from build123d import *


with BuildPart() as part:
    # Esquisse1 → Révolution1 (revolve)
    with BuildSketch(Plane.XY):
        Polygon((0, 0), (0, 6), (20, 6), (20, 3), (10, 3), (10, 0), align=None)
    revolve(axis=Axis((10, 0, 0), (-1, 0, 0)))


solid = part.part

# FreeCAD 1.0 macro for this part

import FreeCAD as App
import Part
import Sketcher
from FreeCAD import Vector

doc = App.newDocument("Part")
body = doc.addObject("PartDesign::Body", "Body")

# Sketch on XY plane
sketch1 = body.newObject("Sketcher::SketchObject", "Sketch")
sketch1.AttachmentSupport = (doc.getObject("XY_Plane"), [""])
sketch1.MapMode = "FlatFace"
sketch1.addGeometry([
    Part.LineSegment(Vector(0, 6, 0), Vector(0, 0, 0)),  # 0
    Part.LineSegment(Vector(0, 0, 0), Vector(10, 0, 0)),  # 1
    Part.LineSegment(Vector(10, 0, 0), Vector(10, 3, 0)),  # 2
    Part.LineSegment(Vector(10, 3, 0), Vector(20, 3, 0)),  # 3
    Part.LineSegment(Vector(20, 3, 0), Vector(20, 6, 0)),  # 4
    Part.LineSegment(Vector(20, 6, 0), Vector(0, 6, 0)),  # 5
], False)
sketch1.addConstraint([
    Sketcher.Constraint("Coincident", 0, 2, 1, 1),
    Sketcher.Constraint("Coincident", 1, 2, 2, 1),
    Sketcher.Constraint("Coincident", 2, 2, 3, 1),
    Sketcher.Constraint("Coincident", 3, 2, 4, 1),
    Sketcher.Constraint("Coincident", 4, 2, 5, 1),
    Sketcher.Constraint("Coincident", 5, 2, 0, 1),
    Sketcher.Constraint("Vertical", 0),
    Sketcher.Constraint("Horizontal", 1),
    Sketcher.Constraint("Vertical", 2),
    Sketcher.Constraint("Horizontal", 3),
    Sketcher.Constraint("Vertical", 4),
    Sketcher.Constraint("Horizontal", 5),
    Sketcher.Constraint("Coincident", 0, 2, -1, 1),
    Sketcher.Constraint("Equal", 1, 3),
    Sketcher.Constraint("Equal", 2, 4),
    Sketcher.Constraint("DistanceX", 1, 1, 1, 2, 10.0),
    Sketcher.Constraint("DistanceY", 0, 2, 0, 1, 6.0),
])
revolution = body.newObject("PartDesign::Revolution", "Revolution")
revolution.Profile = sketch1
revolution.ReferenceAxis = (sketch1, ["H_Axis"])
revolution.Angle = 360

doc.recompute()
